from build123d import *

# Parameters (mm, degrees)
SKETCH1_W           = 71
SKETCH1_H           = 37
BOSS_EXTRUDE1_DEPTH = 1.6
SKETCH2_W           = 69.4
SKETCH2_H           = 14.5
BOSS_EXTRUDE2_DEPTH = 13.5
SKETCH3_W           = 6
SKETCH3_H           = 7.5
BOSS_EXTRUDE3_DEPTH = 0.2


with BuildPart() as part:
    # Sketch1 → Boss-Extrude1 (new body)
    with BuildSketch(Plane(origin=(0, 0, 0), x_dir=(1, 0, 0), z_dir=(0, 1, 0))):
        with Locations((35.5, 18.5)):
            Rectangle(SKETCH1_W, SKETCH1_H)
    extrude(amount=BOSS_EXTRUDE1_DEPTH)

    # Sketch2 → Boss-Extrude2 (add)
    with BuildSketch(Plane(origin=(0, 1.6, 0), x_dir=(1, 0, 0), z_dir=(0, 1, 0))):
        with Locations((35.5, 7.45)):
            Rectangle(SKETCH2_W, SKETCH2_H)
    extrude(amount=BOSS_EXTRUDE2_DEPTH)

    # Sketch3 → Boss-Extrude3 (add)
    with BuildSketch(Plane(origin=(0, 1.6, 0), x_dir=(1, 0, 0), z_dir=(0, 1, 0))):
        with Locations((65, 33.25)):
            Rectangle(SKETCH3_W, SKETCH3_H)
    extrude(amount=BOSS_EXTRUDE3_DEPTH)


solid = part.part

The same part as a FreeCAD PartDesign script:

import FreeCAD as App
import Part
import Sketcher
from FreeCAD import Vector
Q = App.Units.Quantity

doc = App.newDocument("Part")
params = doc.addObject("Spreadsheet::Sheet", "Params")
for row, (alias, value) in enumerate([
    ("sketch1_width", "71 mm"),
    ("sketch1_height", "37 mm"),
    ("pad1_length", "1.6 mm"),
    ("sketch2_width", "69.4 mm"),
    ("sketch2_height", "14.5 mm"),
    ("pad2_length", "13.5 mm"),
    ("sketch3_width", "6 mm"),
    ("sketch3_height", "7.5 mm"),
    ("pad3_length", "0.2 mm"),
], start=1):
    params.set(f"A{row}", alias)
    params.set(f"B{row}", "=" + value)
    params.setAlias(f"B{row}", alias)

body = doc.addObject("PartDesign::Body", "Body")

sketch1 = doc.addObject("Sketcher::SketchObject", "Sketch")
body.addObject(sketch1)
sketch1.AttachmentSupport = (doc.XZ_Plane, [""])
sketch1.MapMode = "FlatFace"
sketch1.addGeometry(Part.LineSegment(Vector(0, -37, 0), Vector(0, 0, 0)), False)
sketch1.addGeometry(Part.LineSegment(Vector(0, 0, 0), Vector(71, 0, 0)), False)
sketch1.addGeometry(Part.LineSegment(Vector(71, 0, 0), Vector(71, -37, 0)), False)
sketch1.addGeometry(Part.LineSegment(Vector(71, -37, 0), Vector(0, -37, 0)), False)
sketch1.addConstraint(Sketcher.Constraint("Coincident", 0, 2, 1, 1))
sketch1.addConstraint(Sketcher.Constraint("Coincident", 1, 2, 2, 1))
sketch1.addConstraint(Sketcher.Constraint("Coincident", 2, 2, 3, 1))
sketch1.addConstraint(Sketcher.Constraint("Coincident", 3, 2, 0, 1))
sketch1.addConstraint(Sketcher.Constraint("Vertical", 0))
sketch1.addConstraint(Sketcher.Constraint("Horizontal", 1))
sketch1.addConstraint(Sketcher.Constraint("Vertical", 2))
sketch1.addConstraint(Sketcher.Constraint("Horizontal", 3))
sketch1.addConstraint(Sketcher.Constraint("Coincident", 0, 2, -1, 1))
sketch1.addConstraint(Sketcher.Constraint("DistanceX", 1, 1, 1, 2, Q("71 mm")))
sketch1.addConstraint(Sketcher.Constraint("DistanceY", 0, 1, 0, 2, Q("37 mm")))
sketch1.setExpression("Constraints[9]", "Params.sketch1_width")
sketch1.setExpression("Constraints[10]", "Params.sketch1_height")
pad1 = doc.addObject("PartDesign::Pad", "Pad")
body.addObject(pad1)
pad1.Profile = sketch1
pad1.setExpression("Length", "Params.pad1_length")
pad1.Reversed = True

sketch2 = doc.addObject("Sketcher::SketchObject", "Sketch001")
body.addObject(sketch2)
sketch2.AttachmentSupport = (doc.XZ_Plane, [""])
sketch2.MapMode = "FlatFace"
sketch2.AttachmentOffset = App.Placement(Vector(0, 0, -1.6), App.Rotation())
sketch2.addGeometry(Part.LineSegment(Vector(0.8, -14.7, 0), Vector(0.8, -0.2, 0)), False)
sketch2.addGeometry(Part.LineSegment(Vector(0.8, -0.2, 0), Vector(70.2, -0.2, 0)), False)
sketch2.addGeometry(Part.LineSegment(Vector(70.2, -0.2, 0), Vector(70.2, -14.7, 0)), False)
sketch2.addGeometry(Part.LineSegment(Vector(70.2, -14.7, 0), Vector(0.8, -14.7, 0)), False)
sketch2.addConstraint(Sketcher.Constraint("Coincident", 0, 2, 1, 1))
sketch2.addConstraint(Sketcher.Constraint("Coincident", 1, 2, 2, 1))
sketch2.addConstraint(Sketcher.Constraint("Coincident", 2, 2, 3, 1))
sketch2.addConstraint(Sketcher.Constraint("Coincident", 3, 2, 0, 1))
sketch2.addConstraint(Sketcher.Constraint("Vertical", 0))
sketch2.addConstraint(Sketcher.Constraint("Horizontal", 1))
sketch2.addConstraint(Sketcher.Constraint("Vertical", 2))
sketch2.addConstraint(Sketcher.Constraint("Horizontal", 3))
sketch2.addConstraint(Sketcher.Constraint("DistanceX", 1, 1, 1, 2, Q("69.4 mm")))
sketch2.addConstraint(Sketcher.Constraint("DistanceY", 0, 1, 0, 2, Q("14.5 mm")))
sketch2.addConstraint(Sketcher.Constraint("DistanceX", -1, 1, 0, 2, Q("0.8 mm")))
sketch2.addConstraint(Sketcher.Constraint("DistanceY", 0, 2, -1, 1, Q("0.2 mm")))
sketch2.setExpression("Constraints[8]", "Params.sketch2_width")
sketch2.setExpression("Constraints[9]", "Params.sketch2_height")
pad2 = doc.addObject("PartDesign::Pad", "Pad001")
body.addObject(pad2)
pad2.Profile = sketch2
pad2.setExpression("Length", "Params.pad2_length")
pad2.Reversed = True

sketch3 = doc.addObject("Sketcher::SketchObject", "Sketch002")
body.addObject(sketch3)
sketch3.AttachmentSupport = (doc.XZ_Plane, [""])
sketch3.MapMode = "FlatFace"
sketch3.AttachmentOffset = App.Placement(Vector(0, 0, -1.6), App.Rotation())
sketch3.addGeometry(Part.LineSegment(Vector(62, -37, 0), Vector(62, -29.5, 0)), False)
sketch3.addGeometry(Part.LineSegment(Vector(62, -29.5, 0), Vector(68, -29.5, 0)), False)
sketch3.addGeometry(Part.LineSegment(Vector(68, -29.5, 0), Vector(68, -37, 0)), False)
sketch3.addGeometry(Part.LineSegment(Vector(68, -37, 0), Vector(62, -37, 0)), False)
sketch3.addConstraint(Sketcher.Constraint("Coincident", 0, 2, 1, 1))
sketch3.addConstraint(Sketcher.Constraint("Coincident", 1, 2, 2, 1))
sketch3.addConstraint(Sketcher.Constraint("Coincident", 2, 2, 3, 1))
sketch3.addConstraint(Sketcher.Constraint("Coincident", 3, 2, 0, 1))
sketch3.addConstraint(Sketcher.Constraint("Vertical", 0))
sketch3.addConstraint(Sketcher.Constraint("Horizontal", 1))
sketch3.addConstraint(Sketcher.Constraint("Vertical", 2))
sketch3.addConstraint(Sketcher.Constraint("Horizontal", 3))
sketch3.addConstraint(Sketcher.Constraint("DistanceX", 1, 1, 1, 2, Q("6 mm")))
sketch3.addConstraint(Sketcher.Constraint("DistanceY", 0, 1, 0, 2, Q("7.5 mm")))
sketch3.addConstraint(Sketcher.Constraint("DistanceX", -1, 1, 0, 2, Q("62 mm")))
sketch3.addConstraint(Sketcher.Constraint("DistanceY", 2, 2, -1, 1, Q("37 mm")))
sketch3.setExpression("Constraints[8]", "Params.sketch3_width")
sketch3.setExpression("Constraints[9]", "Params.sketch3_height")
pad3 = doc.addObject("PartDesign::Pad", "Pad002")
body.addObject(pad3)
pad3.Profile = sketch3
pad3.setExpression("Length", "Params.pad3_length")
pad3.Reversed = True

doc.recompute()
